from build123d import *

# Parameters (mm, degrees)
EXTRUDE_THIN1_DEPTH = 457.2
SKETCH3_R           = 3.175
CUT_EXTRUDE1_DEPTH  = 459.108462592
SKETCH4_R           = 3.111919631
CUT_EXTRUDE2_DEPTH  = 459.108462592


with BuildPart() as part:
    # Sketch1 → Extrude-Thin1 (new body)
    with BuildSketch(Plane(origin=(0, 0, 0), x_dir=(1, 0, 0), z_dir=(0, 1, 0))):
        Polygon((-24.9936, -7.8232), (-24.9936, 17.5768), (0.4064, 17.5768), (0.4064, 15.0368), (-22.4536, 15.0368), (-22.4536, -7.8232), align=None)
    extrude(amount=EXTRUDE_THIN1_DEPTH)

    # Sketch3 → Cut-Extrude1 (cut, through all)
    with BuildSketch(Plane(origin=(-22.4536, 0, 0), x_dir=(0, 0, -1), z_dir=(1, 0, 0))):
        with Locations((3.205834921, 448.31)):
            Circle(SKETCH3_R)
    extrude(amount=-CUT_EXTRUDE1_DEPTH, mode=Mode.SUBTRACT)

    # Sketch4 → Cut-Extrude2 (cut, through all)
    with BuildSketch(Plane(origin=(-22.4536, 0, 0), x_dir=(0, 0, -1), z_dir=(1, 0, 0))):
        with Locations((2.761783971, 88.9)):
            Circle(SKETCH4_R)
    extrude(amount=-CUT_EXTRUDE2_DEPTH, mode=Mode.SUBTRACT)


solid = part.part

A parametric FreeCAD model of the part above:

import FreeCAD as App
import Part
import Sketcher

V = App.Vector
Q = App.Units.Quantity


def add_polygon(sketch, points):
    """Adds a closed chain of lines whose ends are joined by coincident constraints."""
    first, n = sketch.GeometryCount, len(points)
    for a, b in zip(points, points[1:] + points[:1]):
        sketch.addGeometry(Part.LineSegment(App.Vector(*a, 0), App.Vector(*b, 0)), False)
    for i in range(n):
        sketch.addConstraint(Sketcher.Constraint("Coincident", first + i, 2, first + (i + 1) % n, 1))

doc = App.newDocument("Part")
body = doc.addObject("PartDesign::Body", "Body")

sketch1 = doc.addObject("Sketcher::SketchObject", "Sketch")
body.addObject(sketch1)
sketch1.AttachmentSupport = (doc.XZ_Plane, [""])
sketch1.MapMode = "FlatFace"
add_polygon(sketch1, [(-24.9936, -17.5768), (-24.9936, 7.8232), (-22.4536, 7.8232), (-22.4536, -15.0368), (0.4064, -15.0368), (0.4064, -17.5768)])
sketch1.addConstraint([
    Sketcher.Constraint("Vertical", 0),
    Sketcher.Constraint("Horizontal", 1),
    Sketcher.Constraint("Vertical", 2),
    Sketcher.Constraint("Horizontal", 3),
    Sketcher.Constraint("Vertical", 4),
    Sketcher.Constraint("Horizontal", 5),
    Sketcher.Constraint("Equal", 5, 0),
    Sketcher.Constraint("Equal", 3, 2),
    Sketcher.Constraint("DistanceX", 5, 2, 5, 1, Q("1 in")),
    Sketcher.Constraint("DistanceX", 1, 1, 1, 2, Q("0.1 in")),
    Sketcher.Constraint("DistanceX", 0, 2, -1, 1, Q("0.984 in")),
    Sketcher.Constraint("DistanceY", -1, 1, 0, 2, Q("0.308 in")),
])
pad1 = doc.addObject("PartDesign::Pad", "Pad")
body.addObject(pad1)
pad1.Profile = sketch1
pad1.Length = Q("18 in")
pad1.Reversed = True

sketch2 = doc.addObject("Sketcher::SketchObject", "Sketch001")
body.addObject(sketch2)
sketch2.AttachmentSupport = (doc.YZ_Plane, [""])
sketch2.MapMode = "FlatFace"
sketch2.AttachmentOffset = App.Placement(V(0, 0, -0.884 * 25.4), App.Rotation())
sketch2.addGeometry(Part.Circle(V(448.31, -3.205835, 0), V(0, 0, 1), 3.175), False)
sketch2.addConstraint([
    Sketcher.Constraint("Diameter", 0, Q("0.25 in")),
    Sketcher.Constraint("DistanceX", -1, 1, 0, 3, Q("17.65 in")),
    Sketcher.Constraint("DistanceY", 0, 3, -1, 1, 3.205835),
])
pocket1 = doc.addObject("PartDesign::Pocket", "Pocket")
body.addObject(pocket1)
pocket1.Profile = sketch2
pocket1.Type = "ThroughAll"

sketch3 = doc.addObject("Sketcher::SketchObject", "Sketch002")
body.addObject(sketch3)
sketch3.AttachmentSupport = (doc.YZ_Plane, [""])
sketch3.MapMode = "FlatFace"
sketch3.AttachmentOffset = App.Placement(V(0, 0, -0.884 * 25.4), App.Rotation())
sketch3.addGeometry(Part.Circle(V(88.9, -2.761784, 0), V(0, 0, 1), 3.11192), False)
sketch3.addConstraint([
    Sketcher.Constraint("DistanceX", -1, 1, 0, 3, Q("3.5 in")),
    Sketcher.Constraint("Diameter", 0, 6.223839),
    Sketcher.Constraint("DistanceY", 0, 3, -1, 1, 2.761784),
])
pocket2 = doc.addObject("PartDesign::Pocket", "Pocket001")
body.addObject(pocket2)
pocket2.Profile = sketch3
pocket2.Type = "ThroughAll"

doc.recompute()
